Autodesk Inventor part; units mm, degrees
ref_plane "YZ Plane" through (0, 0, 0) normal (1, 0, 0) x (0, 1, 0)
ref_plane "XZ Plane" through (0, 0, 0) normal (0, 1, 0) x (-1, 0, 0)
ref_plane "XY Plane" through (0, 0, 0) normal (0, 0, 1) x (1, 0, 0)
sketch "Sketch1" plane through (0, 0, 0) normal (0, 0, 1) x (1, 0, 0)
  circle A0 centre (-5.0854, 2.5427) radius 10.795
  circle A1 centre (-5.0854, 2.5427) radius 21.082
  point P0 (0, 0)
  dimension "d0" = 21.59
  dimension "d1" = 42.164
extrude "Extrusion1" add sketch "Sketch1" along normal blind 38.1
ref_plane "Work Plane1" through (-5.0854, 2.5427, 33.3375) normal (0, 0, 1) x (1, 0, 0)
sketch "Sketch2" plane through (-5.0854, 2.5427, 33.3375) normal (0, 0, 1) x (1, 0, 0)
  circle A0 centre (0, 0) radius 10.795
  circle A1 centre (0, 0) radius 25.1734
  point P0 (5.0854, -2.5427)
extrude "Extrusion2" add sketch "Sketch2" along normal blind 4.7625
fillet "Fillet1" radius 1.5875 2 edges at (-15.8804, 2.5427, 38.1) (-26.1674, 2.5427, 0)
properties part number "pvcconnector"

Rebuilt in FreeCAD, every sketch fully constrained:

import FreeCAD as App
import Part
import Sketcher
Q = App.Units.Quantity


def edges_at(feature, points):
    """Names of the edges that pass closest to the given points."""
    edges = feature.Shape.Edges
    near = lambda p: min(range(len(edges)), key=lambda i: edges[i].distToShape(Part.Vertex(*p))[0])
    return sorted({f"Edge{near(p) + 1}" for p in points})

doc = App.newDocument("Part")
body = doc.addObject("PartDesign::Body", "Body")

# Sketch on XY plane
sketch1 = body.newObject("Sketcher::SketchObject", "Sketch")
sketch1.AttachmentSupport = (doc.getObject("XY_Plane"), [""])
sketch1.MapMode = "FlatFace"
sketch1.addGeometry(Part.Circle(App.Vector(-5, 3, 0), App.Vector(0, 0, 1), 21), False)
sketch1.addGeometry(Part.Circle(App.Vector(-5, 3, 0), App.Vector(0, 0, 1), 11), False)
sketch1.addConstraint(Sketcher.Constraint("Coincident", 1, 3, 0, 3))
sketch1.addConstraint(Sketcher.Constraint("Diameter", 0, Q("1.66 in")))
sketch1.addConstraint(Sketcher.Constraint("Diameter", 1, Q("0.85 in")))
sketch1.addConstraint(Sketcher.Constraint("DistanceY", -1, 1, 0, 3, Q("0.1001 in")))
sketch1.addConstraint(Sketcher.Constraint("DistanceX", 0, 3, -1, 1, Q("5.0854 mm")))
pad1 = body.newObject("PartDesign::Pad", "Pad")
pad1.Profile = sketch1
pad1.Length = Q("1.5 in")

# Sketch on XY plane
sketch2 = body.newObject("Sketcher::SketchObject", "Sketch001")
sketch2.AttachmentSupport = (doc.getObject("XY_Plane"), [""])
sketch2.MapMode = "FlatFace"
sketch2.AttachmentOffset = App.Placement(App.Vector(0, 0, 1.3125 * 25.4), App.Rotation())
sketch2.addGeometry(Part.Circle(App.Vector(-5, 3, 0), App.Vector(0, 0, 1), 25), False)
sketch2.addGeometry(Part.Circle(App.Vector(-5, 3, 0), App.Vector(0, 0, 1), 11), False)
sketch2.addConstraint(Sketcher.Constraint("Coincident", 1, 3, 0, 3))
sketch2.addConstraint(Sketcher.Constraint("Diameter", 1, Q("0.85 in")))
sketch2.addConstraint(Sketcher.Constraint("Diameter", 0, Q("50.3468 mm")))
sketch2.addConstraint(Sketcher.Constraint("DistanceY", -1, 1, 0, 3, Q("0.1001 in")))
sketch2.addConstraint(Sketcher.Constraint("DistanceX", 0, 3, -1, 1, Q("5.0854 mm")))
pad2 = body.newObject("PartDesign::Pad", "Pad001")
pad2.Profile = sketch2
pad2.Length = Q("0.1875 in")
doc.recompute()

fillet = body.newObject("PartDesign::Fillet", "Fillet")
fillet.Base = (pad2, edges_at(pad2, [(-15.88, 2.543, 38.1), (-26.167, 2.543, 0)]))
fillet.Radius = Q("0.0625 in")

doc.recompute()
